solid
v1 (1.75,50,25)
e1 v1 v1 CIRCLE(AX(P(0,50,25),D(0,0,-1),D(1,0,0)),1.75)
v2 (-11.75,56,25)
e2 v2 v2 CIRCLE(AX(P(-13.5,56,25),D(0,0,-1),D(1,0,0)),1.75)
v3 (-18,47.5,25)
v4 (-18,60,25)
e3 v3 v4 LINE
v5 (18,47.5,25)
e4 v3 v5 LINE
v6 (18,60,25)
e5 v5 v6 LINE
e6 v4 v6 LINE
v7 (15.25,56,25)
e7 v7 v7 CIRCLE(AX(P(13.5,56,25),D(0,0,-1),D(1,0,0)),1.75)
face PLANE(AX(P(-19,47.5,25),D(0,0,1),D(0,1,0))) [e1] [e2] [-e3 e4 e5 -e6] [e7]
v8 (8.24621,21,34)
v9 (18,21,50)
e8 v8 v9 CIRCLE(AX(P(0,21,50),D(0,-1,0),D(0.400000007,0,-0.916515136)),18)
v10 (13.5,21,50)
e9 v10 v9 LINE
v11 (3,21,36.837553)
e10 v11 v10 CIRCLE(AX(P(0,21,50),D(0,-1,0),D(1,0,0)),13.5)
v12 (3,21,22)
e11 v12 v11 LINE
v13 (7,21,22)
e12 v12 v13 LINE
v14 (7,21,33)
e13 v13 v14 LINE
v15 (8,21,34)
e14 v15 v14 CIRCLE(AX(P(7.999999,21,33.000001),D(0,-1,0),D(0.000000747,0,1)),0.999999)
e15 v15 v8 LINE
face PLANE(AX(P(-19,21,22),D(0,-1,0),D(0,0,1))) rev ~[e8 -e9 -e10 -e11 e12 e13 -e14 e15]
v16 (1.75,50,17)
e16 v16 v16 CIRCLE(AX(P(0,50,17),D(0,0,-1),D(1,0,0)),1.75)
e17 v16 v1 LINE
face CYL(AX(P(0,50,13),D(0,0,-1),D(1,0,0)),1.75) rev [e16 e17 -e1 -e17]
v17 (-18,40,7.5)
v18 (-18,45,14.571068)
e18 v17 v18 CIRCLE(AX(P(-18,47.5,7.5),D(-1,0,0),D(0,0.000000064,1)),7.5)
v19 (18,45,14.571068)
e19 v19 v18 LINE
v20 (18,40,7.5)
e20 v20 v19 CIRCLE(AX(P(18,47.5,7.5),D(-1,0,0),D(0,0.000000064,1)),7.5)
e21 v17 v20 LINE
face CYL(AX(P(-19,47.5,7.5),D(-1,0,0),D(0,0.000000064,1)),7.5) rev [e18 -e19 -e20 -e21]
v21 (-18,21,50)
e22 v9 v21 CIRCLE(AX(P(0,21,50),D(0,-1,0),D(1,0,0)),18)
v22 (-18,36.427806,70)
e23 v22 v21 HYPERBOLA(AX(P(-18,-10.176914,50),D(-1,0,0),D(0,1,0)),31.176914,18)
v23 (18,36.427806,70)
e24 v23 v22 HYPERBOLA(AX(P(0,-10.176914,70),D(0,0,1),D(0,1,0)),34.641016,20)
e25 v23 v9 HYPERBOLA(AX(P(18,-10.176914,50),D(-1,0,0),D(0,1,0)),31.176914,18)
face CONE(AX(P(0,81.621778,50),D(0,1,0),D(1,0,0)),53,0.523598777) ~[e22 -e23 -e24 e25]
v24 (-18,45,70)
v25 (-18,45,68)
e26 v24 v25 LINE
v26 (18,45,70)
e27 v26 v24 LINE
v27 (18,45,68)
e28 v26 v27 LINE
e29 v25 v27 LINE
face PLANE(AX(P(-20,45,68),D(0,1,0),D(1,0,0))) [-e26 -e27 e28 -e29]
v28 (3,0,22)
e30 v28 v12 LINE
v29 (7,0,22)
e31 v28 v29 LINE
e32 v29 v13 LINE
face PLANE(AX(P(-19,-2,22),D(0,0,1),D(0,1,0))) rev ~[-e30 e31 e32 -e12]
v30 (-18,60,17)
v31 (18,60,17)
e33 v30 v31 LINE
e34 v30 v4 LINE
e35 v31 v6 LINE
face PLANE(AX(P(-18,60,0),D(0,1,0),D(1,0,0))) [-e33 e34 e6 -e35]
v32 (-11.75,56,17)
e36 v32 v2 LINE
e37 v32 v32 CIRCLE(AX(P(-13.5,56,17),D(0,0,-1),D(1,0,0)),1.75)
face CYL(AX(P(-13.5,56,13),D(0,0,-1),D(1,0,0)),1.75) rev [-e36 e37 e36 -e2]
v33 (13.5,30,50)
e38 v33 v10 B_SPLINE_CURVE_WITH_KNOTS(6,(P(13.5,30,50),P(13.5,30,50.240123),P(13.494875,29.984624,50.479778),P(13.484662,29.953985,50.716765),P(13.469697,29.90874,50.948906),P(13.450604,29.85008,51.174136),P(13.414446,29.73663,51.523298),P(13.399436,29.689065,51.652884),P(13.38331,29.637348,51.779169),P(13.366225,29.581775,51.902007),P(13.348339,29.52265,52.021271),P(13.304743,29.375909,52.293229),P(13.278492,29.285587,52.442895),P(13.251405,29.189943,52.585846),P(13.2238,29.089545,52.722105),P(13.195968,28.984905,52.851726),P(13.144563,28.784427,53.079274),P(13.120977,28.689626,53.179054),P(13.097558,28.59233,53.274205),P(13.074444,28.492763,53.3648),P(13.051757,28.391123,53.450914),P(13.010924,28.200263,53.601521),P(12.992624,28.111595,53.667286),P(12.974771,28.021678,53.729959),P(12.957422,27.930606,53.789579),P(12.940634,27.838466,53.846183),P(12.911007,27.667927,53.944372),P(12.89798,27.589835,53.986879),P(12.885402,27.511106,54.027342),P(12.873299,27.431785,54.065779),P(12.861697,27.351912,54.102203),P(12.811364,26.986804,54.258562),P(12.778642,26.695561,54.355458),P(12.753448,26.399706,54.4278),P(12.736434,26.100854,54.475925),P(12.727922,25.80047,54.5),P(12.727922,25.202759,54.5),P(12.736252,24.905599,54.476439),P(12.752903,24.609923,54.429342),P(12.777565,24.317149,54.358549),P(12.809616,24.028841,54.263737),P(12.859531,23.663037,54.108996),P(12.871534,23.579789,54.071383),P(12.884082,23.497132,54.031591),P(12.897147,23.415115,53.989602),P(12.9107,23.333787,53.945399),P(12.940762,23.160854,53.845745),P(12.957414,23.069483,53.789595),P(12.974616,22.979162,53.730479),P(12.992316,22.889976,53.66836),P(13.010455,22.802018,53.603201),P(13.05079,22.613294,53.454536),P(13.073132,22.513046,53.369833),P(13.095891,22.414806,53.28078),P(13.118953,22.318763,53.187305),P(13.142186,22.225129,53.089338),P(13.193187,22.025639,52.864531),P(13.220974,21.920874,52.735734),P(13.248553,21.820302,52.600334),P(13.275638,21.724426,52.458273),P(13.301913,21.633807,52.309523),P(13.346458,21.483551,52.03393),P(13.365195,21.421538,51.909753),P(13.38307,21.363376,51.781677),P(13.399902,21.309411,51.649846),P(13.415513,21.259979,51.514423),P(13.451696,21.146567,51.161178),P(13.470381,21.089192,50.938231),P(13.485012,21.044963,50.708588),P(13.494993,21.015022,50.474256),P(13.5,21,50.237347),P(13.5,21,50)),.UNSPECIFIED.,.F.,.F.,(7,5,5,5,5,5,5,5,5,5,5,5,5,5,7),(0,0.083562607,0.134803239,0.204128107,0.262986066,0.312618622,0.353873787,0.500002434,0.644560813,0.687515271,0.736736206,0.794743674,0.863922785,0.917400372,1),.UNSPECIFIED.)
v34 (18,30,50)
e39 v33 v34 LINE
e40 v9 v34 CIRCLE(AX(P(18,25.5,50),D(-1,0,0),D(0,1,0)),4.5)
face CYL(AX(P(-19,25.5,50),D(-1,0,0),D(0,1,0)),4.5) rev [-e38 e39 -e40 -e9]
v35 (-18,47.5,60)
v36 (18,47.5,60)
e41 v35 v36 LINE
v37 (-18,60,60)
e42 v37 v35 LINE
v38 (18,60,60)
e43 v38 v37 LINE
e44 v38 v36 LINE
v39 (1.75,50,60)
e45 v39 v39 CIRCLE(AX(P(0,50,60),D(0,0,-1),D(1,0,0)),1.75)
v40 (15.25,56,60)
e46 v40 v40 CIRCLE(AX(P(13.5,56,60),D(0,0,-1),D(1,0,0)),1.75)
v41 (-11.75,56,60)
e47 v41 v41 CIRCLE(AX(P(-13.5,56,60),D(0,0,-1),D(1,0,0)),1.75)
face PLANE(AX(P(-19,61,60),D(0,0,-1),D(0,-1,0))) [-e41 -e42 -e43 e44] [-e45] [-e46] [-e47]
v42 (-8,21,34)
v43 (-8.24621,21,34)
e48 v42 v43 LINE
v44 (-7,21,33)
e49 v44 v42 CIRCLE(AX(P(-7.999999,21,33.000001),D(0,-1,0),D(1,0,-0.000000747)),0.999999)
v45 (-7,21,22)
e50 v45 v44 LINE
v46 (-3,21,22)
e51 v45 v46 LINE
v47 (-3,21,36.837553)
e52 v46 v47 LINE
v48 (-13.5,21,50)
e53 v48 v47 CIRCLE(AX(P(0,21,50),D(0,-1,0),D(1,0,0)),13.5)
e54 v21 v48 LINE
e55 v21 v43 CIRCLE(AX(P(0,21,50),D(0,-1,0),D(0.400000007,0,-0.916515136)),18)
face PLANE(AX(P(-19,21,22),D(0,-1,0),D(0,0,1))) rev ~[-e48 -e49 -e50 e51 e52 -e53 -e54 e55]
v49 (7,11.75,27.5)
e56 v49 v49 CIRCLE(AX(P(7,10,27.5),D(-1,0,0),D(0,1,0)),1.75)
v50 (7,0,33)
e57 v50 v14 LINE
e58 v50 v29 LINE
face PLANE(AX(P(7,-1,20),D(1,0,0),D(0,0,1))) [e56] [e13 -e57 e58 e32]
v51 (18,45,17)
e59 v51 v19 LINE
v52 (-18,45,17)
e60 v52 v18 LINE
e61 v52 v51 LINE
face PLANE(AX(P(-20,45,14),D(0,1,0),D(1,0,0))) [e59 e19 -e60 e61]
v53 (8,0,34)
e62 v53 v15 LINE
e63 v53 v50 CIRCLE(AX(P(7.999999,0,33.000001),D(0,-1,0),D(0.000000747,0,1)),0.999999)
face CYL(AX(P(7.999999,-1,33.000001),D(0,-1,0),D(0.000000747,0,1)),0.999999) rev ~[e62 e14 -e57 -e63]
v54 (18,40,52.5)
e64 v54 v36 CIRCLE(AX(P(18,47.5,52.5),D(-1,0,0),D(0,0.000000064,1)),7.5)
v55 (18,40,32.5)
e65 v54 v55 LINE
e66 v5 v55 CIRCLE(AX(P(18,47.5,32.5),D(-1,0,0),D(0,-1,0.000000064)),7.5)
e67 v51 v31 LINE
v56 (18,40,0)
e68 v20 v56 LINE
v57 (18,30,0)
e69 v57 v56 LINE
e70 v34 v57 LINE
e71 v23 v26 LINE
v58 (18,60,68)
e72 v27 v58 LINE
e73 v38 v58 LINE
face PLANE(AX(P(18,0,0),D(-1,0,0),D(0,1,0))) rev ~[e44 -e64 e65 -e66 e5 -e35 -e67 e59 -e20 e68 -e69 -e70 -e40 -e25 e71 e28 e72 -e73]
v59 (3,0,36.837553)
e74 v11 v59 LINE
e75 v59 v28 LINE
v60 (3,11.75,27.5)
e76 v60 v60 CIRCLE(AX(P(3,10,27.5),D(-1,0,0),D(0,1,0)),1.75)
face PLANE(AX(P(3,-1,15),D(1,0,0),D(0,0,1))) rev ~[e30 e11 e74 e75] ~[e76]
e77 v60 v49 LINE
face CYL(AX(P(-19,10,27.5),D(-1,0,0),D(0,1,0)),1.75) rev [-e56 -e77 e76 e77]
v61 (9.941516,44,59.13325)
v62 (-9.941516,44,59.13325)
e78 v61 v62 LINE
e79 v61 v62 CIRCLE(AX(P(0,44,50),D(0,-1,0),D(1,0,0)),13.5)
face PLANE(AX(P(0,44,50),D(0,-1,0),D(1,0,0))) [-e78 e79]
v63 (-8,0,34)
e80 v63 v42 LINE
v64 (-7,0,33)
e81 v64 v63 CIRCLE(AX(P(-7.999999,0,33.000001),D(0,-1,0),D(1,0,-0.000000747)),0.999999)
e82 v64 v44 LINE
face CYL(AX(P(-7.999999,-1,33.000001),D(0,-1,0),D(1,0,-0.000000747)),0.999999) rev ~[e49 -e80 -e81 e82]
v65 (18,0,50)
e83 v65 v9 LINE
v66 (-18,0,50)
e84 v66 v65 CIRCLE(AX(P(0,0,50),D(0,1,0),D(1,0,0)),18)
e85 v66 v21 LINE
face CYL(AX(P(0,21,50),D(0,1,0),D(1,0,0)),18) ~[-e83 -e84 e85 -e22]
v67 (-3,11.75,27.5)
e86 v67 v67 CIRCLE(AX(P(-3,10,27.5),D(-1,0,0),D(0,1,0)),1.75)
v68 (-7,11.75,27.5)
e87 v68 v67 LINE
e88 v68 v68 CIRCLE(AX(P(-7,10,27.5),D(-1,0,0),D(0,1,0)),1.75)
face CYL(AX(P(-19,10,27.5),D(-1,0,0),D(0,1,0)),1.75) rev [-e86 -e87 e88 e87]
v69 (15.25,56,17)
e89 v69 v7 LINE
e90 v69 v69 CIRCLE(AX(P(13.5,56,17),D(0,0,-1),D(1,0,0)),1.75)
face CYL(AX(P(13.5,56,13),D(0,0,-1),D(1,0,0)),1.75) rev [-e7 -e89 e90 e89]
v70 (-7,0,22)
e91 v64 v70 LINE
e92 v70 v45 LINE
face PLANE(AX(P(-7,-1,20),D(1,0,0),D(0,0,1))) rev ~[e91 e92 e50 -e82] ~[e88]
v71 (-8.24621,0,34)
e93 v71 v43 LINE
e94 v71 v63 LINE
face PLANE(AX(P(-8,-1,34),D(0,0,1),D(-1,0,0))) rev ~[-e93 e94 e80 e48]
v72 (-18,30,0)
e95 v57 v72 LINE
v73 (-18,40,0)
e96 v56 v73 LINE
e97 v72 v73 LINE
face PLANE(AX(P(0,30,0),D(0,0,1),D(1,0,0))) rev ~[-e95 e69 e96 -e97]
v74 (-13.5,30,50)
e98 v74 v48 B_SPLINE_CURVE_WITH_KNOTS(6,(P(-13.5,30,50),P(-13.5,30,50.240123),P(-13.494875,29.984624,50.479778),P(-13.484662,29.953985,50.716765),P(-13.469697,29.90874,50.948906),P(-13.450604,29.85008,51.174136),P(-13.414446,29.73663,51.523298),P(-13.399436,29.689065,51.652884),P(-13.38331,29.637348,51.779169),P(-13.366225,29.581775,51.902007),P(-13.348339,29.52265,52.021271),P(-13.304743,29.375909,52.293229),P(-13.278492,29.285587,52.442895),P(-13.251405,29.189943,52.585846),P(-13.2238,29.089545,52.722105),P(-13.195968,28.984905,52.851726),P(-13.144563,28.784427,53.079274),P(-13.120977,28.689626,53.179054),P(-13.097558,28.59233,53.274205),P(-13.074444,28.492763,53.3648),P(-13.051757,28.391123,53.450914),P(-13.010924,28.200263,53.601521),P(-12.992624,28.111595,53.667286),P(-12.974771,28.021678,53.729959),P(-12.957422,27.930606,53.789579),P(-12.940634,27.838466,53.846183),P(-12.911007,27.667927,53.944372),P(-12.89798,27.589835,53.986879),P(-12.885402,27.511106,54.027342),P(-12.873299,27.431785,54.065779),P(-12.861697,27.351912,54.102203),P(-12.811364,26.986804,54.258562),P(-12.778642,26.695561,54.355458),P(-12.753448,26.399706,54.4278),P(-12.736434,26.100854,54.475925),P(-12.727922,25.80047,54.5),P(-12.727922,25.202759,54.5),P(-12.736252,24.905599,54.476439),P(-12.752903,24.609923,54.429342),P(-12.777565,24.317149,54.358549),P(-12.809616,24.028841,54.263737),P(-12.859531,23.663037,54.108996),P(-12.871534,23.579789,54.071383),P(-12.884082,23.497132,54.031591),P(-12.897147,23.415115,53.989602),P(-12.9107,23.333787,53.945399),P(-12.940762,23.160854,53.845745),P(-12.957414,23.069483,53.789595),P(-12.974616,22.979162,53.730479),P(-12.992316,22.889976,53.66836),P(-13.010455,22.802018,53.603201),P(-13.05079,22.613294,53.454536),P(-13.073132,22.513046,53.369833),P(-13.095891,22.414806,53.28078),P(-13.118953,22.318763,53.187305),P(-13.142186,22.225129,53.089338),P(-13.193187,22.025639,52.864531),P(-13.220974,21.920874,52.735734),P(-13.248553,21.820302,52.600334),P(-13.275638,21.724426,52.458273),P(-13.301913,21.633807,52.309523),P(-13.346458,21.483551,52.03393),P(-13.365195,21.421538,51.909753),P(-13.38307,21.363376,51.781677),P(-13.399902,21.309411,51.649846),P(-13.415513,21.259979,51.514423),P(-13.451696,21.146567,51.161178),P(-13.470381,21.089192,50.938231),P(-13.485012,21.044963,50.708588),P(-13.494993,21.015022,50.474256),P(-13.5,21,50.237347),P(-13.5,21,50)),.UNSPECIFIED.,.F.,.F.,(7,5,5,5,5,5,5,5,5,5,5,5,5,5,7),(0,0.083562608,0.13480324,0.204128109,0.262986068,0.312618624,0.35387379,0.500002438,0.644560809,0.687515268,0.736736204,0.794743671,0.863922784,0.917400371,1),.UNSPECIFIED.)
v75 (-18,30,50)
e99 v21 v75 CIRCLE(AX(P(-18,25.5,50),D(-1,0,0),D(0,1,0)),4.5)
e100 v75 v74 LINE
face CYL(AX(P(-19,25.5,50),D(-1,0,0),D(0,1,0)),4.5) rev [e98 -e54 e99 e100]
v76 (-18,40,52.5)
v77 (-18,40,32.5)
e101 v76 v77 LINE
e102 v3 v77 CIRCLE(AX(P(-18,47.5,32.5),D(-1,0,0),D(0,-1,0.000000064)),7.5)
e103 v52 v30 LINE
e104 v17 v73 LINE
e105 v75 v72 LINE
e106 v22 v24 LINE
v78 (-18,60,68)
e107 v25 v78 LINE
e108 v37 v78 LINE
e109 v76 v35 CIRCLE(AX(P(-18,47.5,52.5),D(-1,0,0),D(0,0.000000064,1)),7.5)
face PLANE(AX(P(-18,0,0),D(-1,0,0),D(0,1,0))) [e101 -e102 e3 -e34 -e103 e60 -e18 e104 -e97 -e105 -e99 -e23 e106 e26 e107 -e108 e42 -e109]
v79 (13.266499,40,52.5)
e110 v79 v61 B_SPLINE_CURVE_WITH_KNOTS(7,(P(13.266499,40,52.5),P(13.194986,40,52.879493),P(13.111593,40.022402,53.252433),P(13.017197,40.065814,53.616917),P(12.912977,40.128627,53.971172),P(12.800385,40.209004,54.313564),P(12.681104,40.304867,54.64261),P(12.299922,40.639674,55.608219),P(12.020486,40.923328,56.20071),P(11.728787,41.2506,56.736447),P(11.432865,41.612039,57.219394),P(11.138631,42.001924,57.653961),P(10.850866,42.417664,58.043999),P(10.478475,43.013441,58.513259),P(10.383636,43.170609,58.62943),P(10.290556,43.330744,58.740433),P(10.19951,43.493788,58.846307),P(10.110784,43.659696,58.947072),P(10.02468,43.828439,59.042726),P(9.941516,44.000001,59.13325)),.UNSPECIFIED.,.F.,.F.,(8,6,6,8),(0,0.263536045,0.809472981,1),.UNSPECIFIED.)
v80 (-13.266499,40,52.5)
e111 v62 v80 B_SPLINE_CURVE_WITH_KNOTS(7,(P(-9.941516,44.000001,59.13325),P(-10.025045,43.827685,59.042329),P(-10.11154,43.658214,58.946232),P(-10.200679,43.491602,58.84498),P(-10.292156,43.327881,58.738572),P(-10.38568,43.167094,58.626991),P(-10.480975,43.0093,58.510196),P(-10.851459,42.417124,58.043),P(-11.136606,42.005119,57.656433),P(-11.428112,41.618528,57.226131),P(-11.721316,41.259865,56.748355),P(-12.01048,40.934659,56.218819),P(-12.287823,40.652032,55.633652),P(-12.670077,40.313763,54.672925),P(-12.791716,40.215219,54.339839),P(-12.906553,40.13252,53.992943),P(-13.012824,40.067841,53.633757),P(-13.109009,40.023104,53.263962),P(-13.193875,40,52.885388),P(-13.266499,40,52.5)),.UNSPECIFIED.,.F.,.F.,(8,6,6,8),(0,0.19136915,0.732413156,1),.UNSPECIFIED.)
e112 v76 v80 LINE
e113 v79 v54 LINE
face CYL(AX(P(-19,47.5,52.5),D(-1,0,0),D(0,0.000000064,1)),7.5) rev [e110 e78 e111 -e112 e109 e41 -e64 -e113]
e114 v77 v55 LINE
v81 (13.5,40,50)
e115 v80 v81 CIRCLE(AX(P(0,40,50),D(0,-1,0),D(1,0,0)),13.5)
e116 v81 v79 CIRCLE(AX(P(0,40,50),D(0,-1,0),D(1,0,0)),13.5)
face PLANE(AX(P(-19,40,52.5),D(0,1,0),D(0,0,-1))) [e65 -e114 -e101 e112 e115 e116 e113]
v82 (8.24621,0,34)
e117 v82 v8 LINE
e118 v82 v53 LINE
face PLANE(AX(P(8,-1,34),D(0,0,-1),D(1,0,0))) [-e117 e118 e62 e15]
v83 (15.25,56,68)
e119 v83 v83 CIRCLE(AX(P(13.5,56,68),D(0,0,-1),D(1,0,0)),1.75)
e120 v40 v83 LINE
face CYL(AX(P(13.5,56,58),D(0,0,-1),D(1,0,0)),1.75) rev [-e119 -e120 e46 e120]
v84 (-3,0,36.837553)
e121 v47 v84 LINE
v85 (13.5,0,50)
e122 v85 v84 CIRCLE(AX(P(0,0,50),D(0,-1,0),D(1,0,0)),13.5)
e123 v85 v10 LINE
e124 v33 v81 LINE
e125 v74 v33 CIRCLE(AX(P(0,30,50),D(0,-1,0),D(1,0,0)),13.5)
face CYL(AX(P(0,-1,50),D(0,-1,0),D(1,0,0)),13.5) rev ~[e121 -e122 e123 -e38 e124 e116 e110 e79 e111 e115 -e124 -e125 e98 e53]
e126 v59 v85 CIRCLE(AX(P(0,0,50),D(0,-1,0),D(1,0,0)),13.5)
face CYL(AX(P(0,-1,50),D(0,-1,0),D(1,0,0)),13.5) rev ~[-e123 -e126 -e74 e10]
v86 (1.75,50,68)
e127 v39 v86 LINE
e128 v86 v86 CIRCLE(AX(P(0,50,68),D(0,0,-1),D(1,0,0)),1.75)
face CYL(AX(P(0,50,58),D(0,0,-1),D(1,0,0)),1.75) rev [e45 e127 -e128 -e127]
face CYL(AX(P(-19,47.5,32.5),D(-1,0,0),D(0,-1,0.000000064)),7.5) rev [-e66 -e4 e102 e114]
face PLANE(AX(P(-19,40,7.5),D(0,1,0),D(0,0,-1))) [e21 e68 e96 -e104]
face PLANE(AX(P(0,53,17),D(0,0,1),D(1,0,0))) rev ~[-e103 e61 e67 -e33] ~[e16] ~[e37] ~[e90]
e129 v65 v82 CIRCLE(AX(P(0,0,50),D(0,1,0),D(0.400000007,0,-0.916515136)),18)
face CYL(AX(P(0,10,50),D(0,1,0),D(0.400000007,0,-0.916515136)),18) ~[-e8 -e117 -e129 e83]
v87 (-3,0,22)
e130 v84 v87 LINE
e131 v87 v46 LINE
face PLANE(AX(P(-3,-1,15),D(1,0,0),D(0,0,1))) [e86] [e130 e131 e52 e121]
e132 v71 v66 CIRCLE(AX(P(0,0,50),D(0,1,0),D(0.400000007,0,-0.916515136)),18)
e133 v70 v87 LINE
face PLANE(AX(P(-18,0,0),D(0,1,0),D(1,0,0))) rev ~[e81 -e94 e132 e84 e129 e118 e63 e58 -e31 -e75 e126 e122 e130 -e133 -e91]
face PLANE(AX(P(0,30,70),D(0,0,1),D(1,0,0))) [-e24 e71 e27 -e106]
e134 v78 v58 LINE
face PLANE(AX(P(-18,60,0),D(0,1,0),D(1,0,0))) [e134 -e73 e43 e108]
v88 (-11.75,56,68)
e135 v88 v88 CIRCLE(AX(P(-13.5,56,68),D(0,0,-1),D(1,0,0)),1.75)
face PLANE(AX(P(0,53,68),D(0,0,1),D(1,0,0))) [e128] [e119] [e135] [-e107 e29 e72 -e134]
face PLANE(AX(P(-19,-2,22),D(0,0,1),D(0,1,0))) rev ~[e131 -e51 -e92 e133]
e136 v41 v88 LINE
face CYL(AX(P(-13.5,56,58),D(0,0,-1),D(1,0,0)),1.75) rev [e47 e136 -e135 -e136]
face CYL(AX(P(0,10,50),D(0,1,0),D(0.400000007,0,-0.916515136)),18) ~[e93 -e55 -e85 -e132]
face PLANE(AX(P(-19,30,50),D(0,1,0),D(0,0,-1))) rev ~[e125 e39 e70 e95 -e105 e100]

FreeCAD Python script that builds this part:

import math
import FreeCAD as App
import Part
import Sketcher
Q = App.Units.Quantity

doc = App.newDocument("Part")
body = doc.addObject("PartDesign::Body", "Body")
body.AllowCompound = True

sketch1 = body.newObject("Sketcher::SketchObject", "Sketch")
sketch1.AttachmentSupport = (doc.getObject("XY_Plane"), [""])
sketch1.MapMode = "FlatFace"
sketch1.addGeometry(Part.Circle(App.Vector(-13.5, 56, 0), App.Vector(0, 0, 1), 1.8), False)
sketch1.addGeometry(Part.Circle(App.Vector(13.5, 56, 0), App.Vector(0, 0, 1), 1.8), False)
sketch1.addGeometry(Part.Circle(App.Vector(0, 50, 0), App.Vector(0, 0, 1), 1.8), False)
sketch1.addConstraint(Sketcher.Constraint("Equal", 0, 1))
sketch1.addConstraint(Sketcher.Constraint("Equal", 1, 2))
sketch1.addConstraint(Sketcher.Constraint("Symmetric", 0, 3, 1, 3, -2))
sketch1.addConstraint(Sketcher.Constraint("PointOnObject", 2, 3, -2))
sketch1.addConstraint(Sketcher.Constraint("Diameter", 0, 3.5))
sketch1.addConstraint(Sketcher.Constraint("DistanceY", -1, 1, 0, 3, 56.0))
sketch1.addConstraint(Sketcher.Constraint("DistanceY", -1, 1, 2, 3, 50.0))
sketch1.addConstraint(Sketcher.Constraint("DistanceX", 0, 3, 1, 3, 27.0))
pad1 = body.newObject("PartDesign::Pad", "Pad")
pad1.Profile = sketch1
pad1.Length = 15
body2 = doc.addObject("PartDesign::Body", "Body001")
body2.AllowCompound = True
doc.recompute()

body.Placement = App.Placement(App.Vector(0, 0, 13), App.Rotation(App.Vector(0, 0, 1), 0))
boolean = body2.newObject("PartDesign::Boolean", "Boolean")
boolean.Type = "Fuse"
boolean.addObjects([body])
body3 = doc.addObject("PartDesign::Body", "Body002")

sketch2 = body3.newObject("Sketcher::SketchObject", "Sketch001")
sketch2.AttachmentSupport = (doc.getObject("XY_Plane002"), [""])
sketch2.MapMode = "FlatFace"
sketch2.addGeometry(Part.LineSegment(App.Vector(-20, 61, 0), App.Vector(-20, 45, 0)), False)
sketch2.addGeometry(Part.LineSegment(App.Vector(-20, 45, 0), App.Vector(20, 45, 0)), False)
sketch2.addGeometry(Part.LineSegment(App.Vector(20, 45, 0), App.Vector(20, 61, 0)), False)
sketch2.addGeometry(Part.LineSegment(App.Vector(20, 61, 0), App.Vector(-20, 61, 0)), False)
sketch2.addConstraint(Sketcher.Constraint("Coincident", 0, 2, 1, 1))
sketch2.addConstraint(Sketcher.Constraint("Coincident", 1, 2, 2, 1))
sketch2.addConstraint(Sketcher.Constraint("Coincident", 2, 2, 3, 1))
sketch2.addConstraint(Sketcher.Constraint("Coincident", 3, 2, 0, 1))
sketch2.addConstraint(Sketcher.Constraint("Vertical", 0))
sketch2.addConstraint(Sketcher.Constraint("Horizontal", 1))
sketch2.addConstraint(Sketcher.Constraint("Vertical", 2))
sketch2.addConstraint(Sketcher.Constraint("Horizontal", 3))
sketch2.addConstraint(Sketcher.Constraint("DistanceX", 1, 1, 1, 2, 40.0))
sketch2.addConstraint(Sketcher.Constraint("DistanceY", 0, 2, 0, 1, 16.0))
sketch2.addConstraint(Sketcher.Constraint("DistanceX", 0, 2, -1, 1, 20.0))
sketch2.addConstraint(Sketcher.Constraint("DistanceY", -1, 1, 0, 2, 45.0))
pad2 = body3.newObject("PartDesign::Pad", "Pad001")
pad2.Profile = sketch2
pad2.Length = 3
body4 = doc.addObject("PartDesign::Body", "Body003")
doc.recompute()

body3.Placement = App.Placement(App.Vector(0, 0, 68), App.Rotation(App.Vector(0, 0, 1), 0))
boolean2 = body4.newObject("PartDesign::Boolean", "Boolean001")
boolean2.Type = "Fuse"
boolean2.addObjects([body3])
body5 = doc.addObject("PartDesign::Body", "Body004")

sketch3 = body5.newObject("Sketcher::SketchObject", "Sketch002")
sketch3.AttachmentSupport = (doc.getObject("XY_Plane004"), [""])
sketch3.MapMode = "FlatFace"
sketch3.addGeometry(Part.Circle(App.Vector(0, 50, 0), App.Vector(0, 0, 1), 14), False)
sketch3.addConstraint(Sketcher.Constraint("PointOnObject", 0, 3, -2))
sketch3.addConstraint(Sketcher.Constraint("Diameter", 0, 27.0))
sketch3.addConstraint(Sketcher.Constraint("DistanceY", -1, 1, 0, 3, 50.0))
pad3 = body5.newObject("PartDesign::Pad", "Pad002")
pad3.Profile = sketch3
pad3.Length = 45
pad3.Reversed = True
body6 = doc.addObject("PartDesign::Body", "Body005")
doc.recompute()

body5.Placement = App.Placement(App.Vector(0, 0, 0), App.Rotation(App.Vector(1, 0, 0), 90))
boolean3 = body6.newObject("PartDesign::Boolean", "Boolean002")
boolean3.Type = "Fuse"
boolean3.addObjects([body5])
body7 = doc.addObject("PartDesign::Body", "Body006")
doc.recompute()

body6.Placement = App.Placement(App.Vector(0, -1, 0), App.Rotation(App.Vector(0, 0, 1), 0))
boolean4 = body7.newObject("PartDesign::Boolean", "Boolean003")
boolean4.Type = "Fuse"
boolean4.addObjects([body6])
body8 = doc.addObject("PartDesign::Body", "Body007")
body8.AllowCompound = True

sketch4 = body8.newObject("Sketcher::SketchObject", "Sketch003")
sketch4.AttachmentSupport = (doc.getObject("XY_Plane007"), [""])
sketch4.MapMode = "FlatFace"
sketch4.addGeometry(Part.LineSegment(App.Vector(20, 34, 0), App.Vector(8, 34, 0)), False)
sketch4.addGeometry(Part.ArcOfCircle(Part.Circle(App.Vector(8, 33, 0), App.Vector(0, 0, 1), 1), math.radians(90), math.radians(180)), False)
sketch4.addGeometry(Part.LineSegment(App.Vector(7, 33, 0), App.Vector(7, 20, 0)), False)
sketch4.addGeometry(Part.LineSegment(App.Vector(7, 20, 0), App.Vector(20, 20, 0)), False)
sketch4.addGeometry(Part.LineSegment(App.Vector(20, 20, 0), App.Vector(20, 34, 0)), False)
sketch4.addGeometry(Part.LineSegment(App.Vector(-8, 34, 0), App.Vector(-20, 34, 0)), False)
sketch4.addGeometry(Part.LineSegment(App.Vector(-20, 34, 0), App.Vector(-20, 20, 0)), False)
sketch4.addGeometry(Part.LineSegment(App.Vector(-20, 20, 0), App.Vector(-7, 20, 0)), False)
sketch4.addGeometry(Part.LineSegment(App.Vector(-7, 20, 0), App.Vector(-7, 33, 0)), False)
sketch4.addGeometry(Part.ArcOfCircle(Part.Circle(App.Vector(-8, 33, 0), App.Vector(0, 0, 1), 1), math.radians(0), math.radians(90)), False)
sketch4.addGeometry(Part.LineSegment(App.Vector(-3, 40, 0), App.Vector(-3, 15, 0)), False)
sketch4.addGeometry(Part.LineSegment(App.Vector(-3, 15, 0), App.Vector(3, 15, 0)), False)
sketch4.addGeometry(Part.LineSegment(App.Vector(3, 15, 0), App.Vector(3, 40, 0)), False)
sketch4.addGeometry(Part.LineSegment(App.Vector(3, 40, 0), App.Vector(-3, 40, 0)), False)
sketch4.addConstraint(Sketcher.Constraint("Tangent", 0, 2, 1, 1))
sketch4.addConstraint(Sketcher.Constraint("Tangent", 1, 2, 2, 1))
sketch4.addConstraint(Sketcher.Constraint("Coincident", 2, 2, 3, 1))
sketch4.addConstraint(Sketcher.Constraint("Coincident", 3, 2, 4, 1))
sketch4.addConstraint(Sketcher.Constraint("Coincident", 4, 2, 0, 1))
sketch4.addConstraint(Sketcher.Constraint("Coincident", 5, 2, 6, 1))
sketch4.addConstraint(Sketcher.Constraint("Coincident", 6, 2, 7, 1))
sketch4.addConstraint(Sketcher.Constraint("Coincident", 7, 2, 8, 1))
sketch4.addConstraint(Sketcher.Constraint("Tangent", 8, 2, 9, 1))
sketch4.addConstraint(Sketcher.Constraint("Tangent", 9, 2, 5, 1))
sketch4.addConstraint(Sketcher.Constraint("Coincident", 10, 2, 11, 1))
sketch4.addConstraint(Sketcher.Constraint("Coincident", 11, 2, 12, 1))
sketch4.addConstraint(Sketcher.Constraint("Coincident", 12, 2, 13, 1))
sketch4.addConstraint(Sketcher.Constraint("Coincident", 13, 2, 10, 1))
sketch4.addConstraint(Sketcher.Constraint("Horizontal", 0))
sketch4.addConstraint(Sketcher.Constraint("Vertical", 2))
sketch4.addConstraint(Sketcher.Constraint("Horizontal", 3))
sketch4.addConstraint(Sketcher.Constraint("Vertical", 4))
sketch4.addConstraint(Sketcher.Constraint("Horizontal", 5))
sketch4.addConstraint(Sketcher.Constraint("Vertical", 6))
sketch4.addConstraint(Sketcher.Constraint("Horizontal", 7))
sketch4.addConstraint(Sketcher.Constraint("Vertical", 8))
sketch4.addConstraint(Sketcher.Constraint("Vertical", 10))
sketch4.addConstraint(Sketcher.Constraint("Horizontal", 11))
sketch4.addConstraint(Sketcher.Constraint("Vertical", 12))
sketch4.addConstraint(Sketcher.Constraint("Horizontal", 13))
sketch4.addConstraint(Sketcher.Constraint("Equal", 1, 9))
sketch4.addConstraint(Sketcher.Constraint("Symmetric", 1, 3, 9, 3, -2))
sketch4.addConstraint(Sketcher.Constraint("Symmetric", 3, 2, 6, 2, -2))
sketch4.addConstraint(Sketcher.Constraint("Equal", 7, 2))
sketch4.addConstraint(Sketcher.Constraint("Radius", 1, 0.999999))
sketch4.addConstraint(Sketcher.Constraint("DistanceX", 0, 2, 0, 1, 12.0))
sketch4.addConstraint(Sketcher.Constraint("DistanceX", 11, 1, 11, 2, 6.0))
sketch4.addConstraint(Sketcher.Constraint("DistanceY", 10, 2, 10, 1, 25.0))
sketch4.addConstraint(Sketcher.Constraint("DistanceX", -1, 1, 1, 3, 7.999999))
sketch4.addConstraint(Sketcher.Constraint("DistanceY", -1, 1, 1, 3, 33.000001))
sketch4.addConstraint(Sketcher.Constraint("DistanceX", 10, 2, -1, 1, 3.0))
sketch4.addConstraint(Sketcher.Constraint("DistanceY", -1, 1, 10, 2, 15.0))
pad4 = body8.newObject("PartDesign::Pad", "Pad003")
pad4.Profile = sketch4
pad4.Length = 30
pad4.Reversed = True
body9 = doc.addObject("PartDesign::Body", "Body008")
body9.AllowCompound = True
doc.recompute()

body8.Placement = App.Placement(App.Vector(0, 0, 0), App.Rotation(App.Vector(1, 0, 0), 90))
boolean5 = body9.newObject("PartDesign::Boolean", "Boolean004")
boolean5.Type = "Fuse"
boolean5.addObjects([body8])
body10 = doc.addObject("PartDesign::Body", "Body009")
body10.AllowCompound = True
doc.recompute()

body9.Placement = App.Placement(App.Vector(0, -1, 0), App.Rotation(App.Vector(0, 0, 1), 0))
boolean6 = body10.newObject("PartDesign::Boolean", "Boolean005")
boolean6.Type = "Fuse"
boolean6.addObjects([body9])
body11 = doc.addObject("PartDesign::Body", "Body010")
body11.AllowCompound = True

sketch5 = body11.newObject("Sketcher::SketchObject", "Sketch004")
sketch5.AttachmentSupport = (doc.getObject("XY_Plane010"), [""])
sketch5.MapMode = "FlatFace"
sketch5.addGeometry(Part.Circle(App.Vector(-13.5, 56, 0), App.Vector(0, 0, 1), 1.8), False)
sketch5.addGeometry(Part.Circle(App.Vector(13.5, 56, 0), App.Vector(0, 0, 1), 1.8), False)
sketch5.addGeometry(Part.Circle(App.Vector(0, 50, 0), App.Vector(0, 0, 1), 1.8), False)
sketch5.addConstraint(Sketcher.Constraint("Equal", 0, 1))
sketch5.addConstraint(Sketcher.Constraint("Equal", 1, 2))
sketch5.addConstraint(Sketcher.Constraint("Symmetric", 0, 3, 1, 3, -2))
sketch5.addConstraint(Sketcher.Constraint("PointOnObject", 2, 3, -2))
sketch5.addConstraint(Sketcher.Constraint("Diameter", 0, 3.5))
sketch5.addConstraint(Sketcher.Constraint("DistanceY", -1, 1, 0, 3, 56.0))
sketch5.addConstraint(Sketcher.Constraint("DistanceY", -1, 1, 2, 3, 50.0))
sketch5.addConstraint(Sketcher.Constraint("DistanceX", 0, 3, 1, 3, 27.0))
pad5 = body11.newObject("PartDesign::Pad", "Pad004")
pad5.Profile = sketch5
pad5.Length = 15
body12 = doc.addObject("PartDesign::Body", "Body011")
body12.AllowCompound = True
doc.recompute()

body11.Placement = App.Placement(App.Vector(0, 0, 58), App.Rotation(App.Vector(0, 0, 1), 0))
boolean7 = body12.newObject("PartDesign::Boolean", "Boolean006")
boolean7.Type = "Fuse"
boolean7.addObjects([body11])
body13 = doc.addObject("PartDesign::Body", "Body012")

sketch6 = body13.newObject("Sketcher::SketchObject", "Sketch005")
sketch6.AttachmentSupport = (doc.getObject("XY_Plane012"), [""])
sketch6.MapMode = "FlatFace"
sketch6.addGeometry(Part.LineSegment(App.Vector(-20, 61, 0), App.Vector(-20, 45, 0)), False)
sketch6.addGeometry(Part.LineSegment(App.Vector(-20, 45, 0), App.Vector(20, 45, 0)), False)
sketch6.addGeometry(Part.LineSegment(App.Vector(20, 45, 0), App.Vector(20, 61, 0)), False)
sketch6.addGeometry(Part.LineSegment(App.Vector(20, 61, 0), App.Vector(-20, 61, 0)), False)
sketch6.addConstraint(Sketcher.Constraint("Coincident", 0, 2, 1, 1))
sketch6.addConstraint(Sketcher.Constraint("Coincident", 1, 2, 2, 1))
sketch6.addConstraint(Sketcher.Constraint("Coincident", 2, 2, 3, 1))
sketch6.addConstraint(Sketcher.Constraint("Coincident", 3, 2, 0, 1))
sketch6.addConstraint(Sketcher.Constraint("Vertical", 0))
sketch6.addConstraint(Sketcher.Constraint("Horizontal", 1))
sketch6.addConstraint(Sketcher.Constraint("Vertical", 2))
sketch6.addConstraint(Sketcher.Constraint("Horizontal", 3))
sketch6.addConstraint(Sketcher.Constraint("DistanceX", 1, 1, 1, 2, 40.0))
sketch6.addConstraint(Sketcher.Constraint("DistanceY", 0, 2, 0, 1, 16.0))
sketch6.addConstraint(Sketcher.Constraint("DistanceX", 0, 2, -1, 1, 20.0))
sketch6.addConstraint(Sketcher.Constraint("DistanceY", -1, 1, 0, 2, 45.0))
pad6 = body13.newObject("PartDesign::Pad", "Pad005")
pad6.Profile = sketch6
pad6.Length = 3
body14 = doc.addObject("PartDesign::Body", "Body013")
doc.recompute()

body13.Placement = App.Placement(App.Vector(0, 0, 14), App.Rotation(App.Vector(0, 0, 1), 0))
boolean8 = body14.newObject("PartDesign::Boolean", "Boolean007")
boolean8.Type = "Fuse"
boolean8.addObjects([body13])
body15 = doc.addObject("PartDesign::Body", "Body014")
body15.AllowCompound = True

sketch7 = body15.newObject("Sketcher::SketchObject", "Sketch006")
sketch7.AttachmentSupport = (doc.getObject("YZ_Plane014"), [""])
sketch7.MapMode = "FlatFace"
sketch7.addGeometry(Part.Circle(App.Vector(10, 27.5, 0), App.Vector(0, 0, 1), 1.8), False)
sketch7.addGeometry(Part.LineSegment(App.Vector(61, 60, 0), App.Vector(47.5, 60, 0)), False)
sketch7.addGeometry(Part.ArcOfCircle(Part.Circle(App.Vector(47.5, 52.5, 0), App.Vector(0, 0, 1), 7.5), math.radians(90), math.radians(180)), False)
sketch7.addGeometry(Part.LineSegment(App.Vector(40, 52.5, 0), App.Vector(40, 32.5, 0)), False)
sketch7.addGeometry(Part.ArcOfCircle(Part.Circle(App.Vector(47.5, 32.5, 0), App.Vector(0, 0, 1), 7.5), math.radians(180), math.radians(270)), False)
sketch7.addGeometry(Part.LineSegment(App.Vector(47.5, 25, 0), App.Vector(61, 25, 0)), False)
sketch7.addGeometry(Part.LineSegment(App.Vector(61, 25, 0), App.Vector(61, 60, 0)), False)
sketch7.addGeometry(Part.LineSegment(App.Vector(61, 15, 0), App.Vector(47.5, 15, 0)), False)
sketch7.addGeometry(Part.ArcOfCircle(Part.Circle(App.Vector(47.5, 7.5, 0), App.Vector(0, 0, 1), 7.5), math.radians(90), math.radians(180)), False)
sketch7.addGeometry(Part.LineSegment(App.Vector(40, 7.5, 0), App.Vector(40, -2, 0)), False)
sketch7.addGeometry(Part.LineSegment(App.Vector(40, -2, 0), App.Vector(61, -2, 0)), False)
sketch7.addGeometry(Part.LineSegment(App.Vector(61, -2, 0), App.Vector(61, 15, 0)), False)
sketch7.addGeometry(Part.LineSegment(App.Vector(30, -2, 0), App.Vector(30, 50, 0)), False)
sketch7.addGeometry(Part.ArcOfCircle(Part.Circle(App.Vector(25.5, 50, 0), App.Vector(0, 0, 1), 4.5), math.radians(0), math.radians(180)), False)
sketch7.addGeometry(Part.LineSegment(App.Vector(21, 50, 0), App.Vector(21, 22, 0)), False)
sketch7.addGeometry(Part.LineSegment(App.Vector(21, 22, 0), App.Vector(-2, 22, 0)), False)
sketch7.addGeometry(Part.LineSegment(App.Vector(-2, 22, 0), App.Vector(-2, -2, 0)), False)
sketch7.addGeometry(Part.LineSegment(App.Vector(-2, -2, 0), App.Vector(30, -2, 0)), False)
sketch7.addConstraint(Sketcher.Constraint("Tangent", 1, 2, 2, 1))
sketch7.addConstraint(Sketcher.Constraint("Tangent", 2, 2, 3, 1))
sketch7.addConstraint(Sketcher.Constraint("Tangent", 3, 2, 4, 1))
sketch7.addConstraint(Sketcher.Constraint("Tangent", 4, 2, 5, 1))
sketch7.addConstraint(Sketcher.Constraint("Coincident", 5, 2, 6, 1))
sketch7.addConstraint(Sketcher.Constraint("Coincident", 6, 2, 1, 1))
sketch7.addConstraint(Sketcher.Constraint("Tangent", 7, 2, 8, 1))
sketch7.addConstraint(Sketcher.Constraint("Tangent", 8, 2, 9, 1))
sketch7.addConstraint(Sketcher.Constraint("Coincident", 9, 2, 10, 1))
sketch7.addConstraint(Sketcher.Constraint("Coincident", 10, 2, 11, 1))
sketch7.addConstraint(Sketcher.Constraint("Coincident", 11, 2, 7, 1))
sketch7.addConstraint(Sketcher.Constraint("Tangent", 12, 2, 13, 1))
sketch7.addConstraint(Sketcher.Constraint("Tangent", 13, 2, 14, 1))
sketch7.addConstraint(Sketcher.Constraint("Coincident", 14, 2, 15, 1))
sketch7.addConstraint(Sketcher.Constraint("Coincident", 15, 2, 16, 1))
sketch7.addConstraint(Sketcher.Constraint("Coincident", 16, 2, 17, 1))
sketch7.addConstraint(Sketcher.Constraint("Coincident", 17, 2, 12, 1))
sketch7.addConstraint(Sketcher.Constraint("Horizontal", 1))
sketch7.addConstraint(Sketcher.Constraint("Vertical", 3))
sketch7.addConstraint(Sketcher.Constraint("Horizontal", 5))
sketch7.addConstraint(Sketcher.Constraint("Vertical", 6))
sketch7.addConstraint(Sketcher.Constraint("Horizontal", 7))
sketch7.addConstraint(Sketcher.Constraint("Vertical", 9))
sketch7.addConstraint(Sketcher.Constraint("Horizontal", 10))
sketch7.addConstraint(Sketcher.Constraint("Vertical", 11))
sketch7.addConstraint(Sketcher.Constraint("Vertical", 12))
sketch7.addConstraint(Sketcher.Constraint("Vertical", 14))
sketch7.addConstraint(Sketcher.Constraint("Horizontal", 15))
sketch7.addConstraint(Sketcher.Constraint("Vertical", 16))
sketch7.addConstraint(Sketcher.Constraint("Horizontal", 17))
sketch7.addConstraint(Sketcher.Constraint("Equal", 2, 4))
sketch7.addConstraint(Sketcher.Constraint("Equal", 4, 8))
sketch7.addConstraint(Sketcher.Constraint("Horizontal", 10, 2, 16, 2))
sketch7.addConstraint(Sketcher.Constraint("Vertical", 4, 3, 8, 3))
sketch7.addConstraint(Sketcher.Constraint("Vertical", 6, 2, 10, 2))
sketch7.addConstraint(Sketcher.Constraint("Diameter", 0, 3.5))
sketch7.addConstraint(Sketcher.Constraint("Radius", 2, 7.5))
sketch7.addConstraint(Sketcher.Constraint("Radius", 13, 4.5))
sketch7.addConstraint(Sketcher.Constraint("DistanceX", 10, 1, 10, 2, 21.0))
sketch7.addConstraint(Sketcher.Constraint("DistanceX", 15, 2, 15, 1, 23.0))
sketch7.addConstraint(Sketcher.Constraint("DistanceY", 3, 2, 3, 1, 20.0))
sketch7.addConstraint(Sketcher.Constraint("DistanceY", 11, 1, 11, 2, 17.0))
sketch7.addConstraint(Sketcher.Constraint("DistanceY", 12, 1, 12, 2, 52.0))
sketch7.addConstraint(Sketcher.Constraint("DistanceY", 14, 2, 14, 1, 28.0))
sketch7.addConstraint(Sketcher.Constraint("DistanceX", -1, 1, 0, 3, 10.0))
sketch7.addConstraint(Sketcher.Constraint("DistanceY", -1, 1, 13, 3, 50.0))
sketch7.addConstraint(Sketcher.Constraint("DistanceY", -1, 1, 1, 2, 60.0))
sketch7.addConstraint(Sketcher.Constraint("DistanceX", -1, 1, 2, 2, 40.0))
sketch7.addConstraint(Sketcher.Constraint("DistanceX", -1, 1, 12, 2, 30.0))
sketch7.addConstraint(Sketcher.Constraint("DistanceY", 0, 3, 2, 3, 25.0))
pad7 = body15.newObject("PartDesign::Pad", "Pad006")
pad7.Profile = sketch7
pad7.Length = 38
body16 = doc.addObject("PartDesign::Body", "Body015")
body16.AllowCompound = True
doc.recompute()

body15.Placement = App.Placement(App.Vector(-19, 0, 0), App.Rotation(App.Vector(0, 0, 1), 0))
boolean9 = body16.newObject("PartDesign::Boolean", "Boolean008")
boolean9.Type = "Fuse"
boolean9.addObjects([body15])
doc.recompute()

boolean10 = body16.newObject("PartDesign::Boolean", "Boolean009")
boolean10.Type = "Fuse"
boolean10.addObjects([body2])
doc.recompute()

boolean11 = body16.newObject("PartDesign::Boolean", "Boolean010")
boolean11.Type = "Fuse"
boolean11.addObjects([body4])
doc.recompute()

boolean12 = body16.newObject("PartDesign::Boolean", "Boolean011")
boolean12.Type = "Fuse"
boolean12.addObjects([body7])
doc.recompute()

boolean13 = body16.newObject("PartDesign::Boolean", "Boolean012")
boolean13.Type = "Fuse"
boolean13.addObjects([body10])
doc.recompute()

boolean14 = body16.newObject("PartDesign::Boolean", "Boolean013")
boolean14.Type = "Fuse"
boolean14.addObjects([body12])
doc.recompute()

boolean15 = body16.newObject("PartDesign::Boolean", "Boolean014")
boolean15.Type = "Fuse"
boolean15.addObjects([body14])
body17 = doc.addObject("PartDesign::Body", "Body016")

sketch8 = body17.newObject("Sketcher::SketchObject", "Sketch007")
sketch8.AttachmentSupport = (doc.getObject("YZ_Plane016"), [""])
sketch8.MapMode = "FlatFace"
sketch8.addGeometry(Part.LineSegment(App.Vector(-1, 88, 0), App.Vector(-1, 68, 0)), False)
sketch8.addGeometry(Part.LineSegment(App.Vector(-1, 68, 0), App.Vector(21, 68, 0)), False)
sketch8.addGeometry(Part.LineSegment(App.Vector(21, 68, 0), App.Vector(21, 88, 0)), False)
sketch8.addGeometry(Part.LineSegment(App.Vector(21, 88, 0), App.Vector(-1, 88, 0)), False)
sketch8.addConstraint(Sketcher.Constraint("Coincident", 0, 2, 1, 1))
sketch8.addConstraint(Sketcher.Constraint("Coincident", 1, 2, 2, 1))
sketch8.addConstraint(Sketcher.Constraint("Coincident", 2, 2, 3, 1))
sketch8.addConstraint(Sketcher.Constraint("Coincident", 3, 2, 0, 1))
sketch8.addConstraint(Sketcher.Constraint("Vertical", 0))
sketch8.addConstraint(Sketcher.Constraint("Horizontal", 1))
sketch8.addConstraint(Sketcher.Constraint("Vertical", 2))
sketch8.addConstraint(Sketcher.Constraint("Horizontal", 3))
sketch8.addConstraint(Sketcher.Constraint("DistanceX", 1, 1, 1, 2, 22.0))
sketch8.addConstraint(Sketcher.Constraint("DistanceY", 0, 2, 0, 1, 20.0))
sketch8.addConstraint(Sketcher.Constraint("DistanceX", 0, 2, -1, 1, 1.0))
sketch8.addConstraint(Sketcher.Constraint("DistanceY", -1, 1, 0, 2, 68.0))

sketch9 = body17.newObject("Sketcher::SketchObject", "Sketch008")
sketch9.AttachmentSupport = (doc.getObject("XZ_Plane016"), [""])
sketch9.MapMode = "FlatFace"
sketch9.addGeometry(Part.ArcOfCircle(Part.Circle(App.Vector(0, 50, 0), App.Vector(0, 0, 1), 10), math.radians(-66), math.radians(246)), False)
sketch9.addConstraint(Sketcher.Constraint("Symmetric", 0, 1, 0, 2, -2))
sketch9.addConstraint(Sketcher.Constraint("Radius", 0, 10.0))
sketch9.addConstraint(Sketcher.Constraint("DistanceY", -1, 1, 0, 3, 50.0))
sketch9.addConstraint(Sketcher.Constraint("DistanceX", -1, 1, 0, 1, 4.0))
doc.recompute()

additivepipe = body17.newObject("PartDesign::AdditivePipe", "AdditivePipe")
additivepipe.Profile = sketch8
additivepipe.Spine = (sketch9, ["Edge1"])
body18 = doc.addObject("PartDesign::Body", "Body017")

sketch10 = body18.newObject("Sketcher::SketchObject", "Sketch009")
sketch10.AttachmentSupport = (doc.getObject("YZ_Plane017"), [""])
sketch10.MapMode = "FlatFace"
sketch10.addGeometry(Part.LineSegment(App.Vector(-1, 68, 0), App.Vector(21, 68, 0)), False)
sketch10.addGeometry(Part.LineSegment(App.Vector(21, 68, 0), App.Vector(82, 103, 0)), False)
sketch10.addGeometry(Part.LineSegment(App.Vector(82, 103, 0), App.Vector(-1, 68, 0)), False)
sketch10.addConstraint(Sketcher.Constraint("Coincident", 0, 2, 1, 1))
sketch10.addConstraint(Sketcher.Constraint("Coincident", 1, 2, 2, 1))
sketch10.addConstraint(Sketcher.Constraint("Coincident", 2, 2, 0, 1))
sketch10.addConstraint(Sketcher.Constraint("Horizontal", 0))
sketch10.addConstraint(Sketcher.Constraint("DistanceX", 0, 1, 0, 2, 22.0))
sketch10.addConstraint(Sketcher.Constraint("Angle", 1, Q("30 deg")))
sketch10.addConstraint(Sketcher.Constraint("Distance", 1, 70.0))
sketch10.addConstraint(Sketcher.Constraint("DistanceX", -1, 1, 0, 2, 21.0))
sketch10.addConstraint(Sketcher.Constraint("DistanceY", -1, 1, 0, 2, 68.0))

sketch11 = body18.newObject("Sketcher::SketchObject", "Sketch010")
sketch11.AttachmentSupport = (doc.getObject("XZ_Plane017"), [""])
sketch11.MapMode = "FlatFace"
sketch11.addGeometry(Part.ArcOfCircle(Part.Circle(App.Vector(0, 50, 0), App.Vector(0, 0, 1), 10), math.radians(0), math.radians(180)), False)
sketch11.addConstraint(Sketcher.Constraint("Symmetric", 0, 1, 0, 2, -2))
sketch11.addConstraint(Sketcher.Constraint("Radius", 0, 10.0))
sketch11.addConstraint(Sketcher.Constraint("DistanceY", -1, 1, 0, 3, 50.0))
sketch11.addConstraint(Sketcher.Constraint("DistanceY", -1, 1, 0, 1, 50.0))
doc.recompute()

additivepipe2 = body18.newObject("PartDesign::AdditivePipe", "AdditivePipe001")
additivepipe2.Profile = sketch10
additivepipe2.Spine = (sketch11, ["Edge1"])
doc.recompute()

boolean16 = body18.newObject("PartDesign::Boolean", "Boolean015")
boolean16.Type = "Fuse"
boolean16.addObjects([body17])
body19 = doc.addObject("PartDesign::Body", "Body018")

sketch12 = body19.newObject("Sketcher::SketchObject", "Sketch011")
sketch12.AttachmentSupport = (doc.getObject("XY_Plane018"), [""])
sketch12.MapMode = "FlatFace"
sketch12.addGeometry(Part.LineSegment(App.Vector(-18, 60, 0), App.Vector(-18, 0, 0)), False)
sketch12.addGeometry(Part.LineSegment(App.Vector(-18, 0, 0), App.Vector(18, 0, 0)), False)
sketch12.addGeometry(Part.LineSegment(App.Vector(18, 0, 0), App.Vector(18, 60, 0)), False)
sketch12.addGeometry(Part.LineSegment(App.Vector(18, 60, 0), App.Vector(-18, 60, 0)), False)
sketch12.addConstraint(Sketcher.Constraint("Coincident", 0, 2, 1, 1))
sketch12.addConstraint(Sketcher.Constraint("Coincident", 1, 2, 2, 1))
sketch12.addConstraint(Sketcher.Constraint("Coincident", 2, 2, 3, 1))
sketch12.addConstraint(Sketcher.Constraint("Coincident", 3, 2, 0, 1))
sketch12.addConstraint(Sketcher.Constraint("Vertical", 0))
sketch12.addConstraint(Sketcher.Constraint("Horizontal", 1))
sketch12.addConstraint(Sketcher.Constraint("Vertical", 2))
sketch12.addConstraint(Sketcher.Constraint("Horizontal", 3))
sketch12.addConstraint(Sketcher.Constraint("Symmetric", 0, 2, 1, 2, -1, 1))
sketch12.addConstraint(Sketcher.Constraint("DistanceX", 1, 1, 1, 2, 36.0))
sketch12.addConstraint(Sketcher.Constraint("DistanceY", 0, 2, 0, 1, 60.0))
pad8 = body19.newObject("PartDesign::Pad", "Pad007")
pad8.Profile = sketch12
pad8.Length = 70
doc.recompute()

boolean17 = body19.newObject("PartDesign::Boolean", "Boolean016")
boolean17.Type = "Cut"
boolean17.addObjects([body18])
doc.recompute()

boolean18 = body19.newObject("PartDesign::Boolean", "Boolean017")
boolean18.Type = "Cut"
boolean18.addObjects([body16])

doc.recompute()
